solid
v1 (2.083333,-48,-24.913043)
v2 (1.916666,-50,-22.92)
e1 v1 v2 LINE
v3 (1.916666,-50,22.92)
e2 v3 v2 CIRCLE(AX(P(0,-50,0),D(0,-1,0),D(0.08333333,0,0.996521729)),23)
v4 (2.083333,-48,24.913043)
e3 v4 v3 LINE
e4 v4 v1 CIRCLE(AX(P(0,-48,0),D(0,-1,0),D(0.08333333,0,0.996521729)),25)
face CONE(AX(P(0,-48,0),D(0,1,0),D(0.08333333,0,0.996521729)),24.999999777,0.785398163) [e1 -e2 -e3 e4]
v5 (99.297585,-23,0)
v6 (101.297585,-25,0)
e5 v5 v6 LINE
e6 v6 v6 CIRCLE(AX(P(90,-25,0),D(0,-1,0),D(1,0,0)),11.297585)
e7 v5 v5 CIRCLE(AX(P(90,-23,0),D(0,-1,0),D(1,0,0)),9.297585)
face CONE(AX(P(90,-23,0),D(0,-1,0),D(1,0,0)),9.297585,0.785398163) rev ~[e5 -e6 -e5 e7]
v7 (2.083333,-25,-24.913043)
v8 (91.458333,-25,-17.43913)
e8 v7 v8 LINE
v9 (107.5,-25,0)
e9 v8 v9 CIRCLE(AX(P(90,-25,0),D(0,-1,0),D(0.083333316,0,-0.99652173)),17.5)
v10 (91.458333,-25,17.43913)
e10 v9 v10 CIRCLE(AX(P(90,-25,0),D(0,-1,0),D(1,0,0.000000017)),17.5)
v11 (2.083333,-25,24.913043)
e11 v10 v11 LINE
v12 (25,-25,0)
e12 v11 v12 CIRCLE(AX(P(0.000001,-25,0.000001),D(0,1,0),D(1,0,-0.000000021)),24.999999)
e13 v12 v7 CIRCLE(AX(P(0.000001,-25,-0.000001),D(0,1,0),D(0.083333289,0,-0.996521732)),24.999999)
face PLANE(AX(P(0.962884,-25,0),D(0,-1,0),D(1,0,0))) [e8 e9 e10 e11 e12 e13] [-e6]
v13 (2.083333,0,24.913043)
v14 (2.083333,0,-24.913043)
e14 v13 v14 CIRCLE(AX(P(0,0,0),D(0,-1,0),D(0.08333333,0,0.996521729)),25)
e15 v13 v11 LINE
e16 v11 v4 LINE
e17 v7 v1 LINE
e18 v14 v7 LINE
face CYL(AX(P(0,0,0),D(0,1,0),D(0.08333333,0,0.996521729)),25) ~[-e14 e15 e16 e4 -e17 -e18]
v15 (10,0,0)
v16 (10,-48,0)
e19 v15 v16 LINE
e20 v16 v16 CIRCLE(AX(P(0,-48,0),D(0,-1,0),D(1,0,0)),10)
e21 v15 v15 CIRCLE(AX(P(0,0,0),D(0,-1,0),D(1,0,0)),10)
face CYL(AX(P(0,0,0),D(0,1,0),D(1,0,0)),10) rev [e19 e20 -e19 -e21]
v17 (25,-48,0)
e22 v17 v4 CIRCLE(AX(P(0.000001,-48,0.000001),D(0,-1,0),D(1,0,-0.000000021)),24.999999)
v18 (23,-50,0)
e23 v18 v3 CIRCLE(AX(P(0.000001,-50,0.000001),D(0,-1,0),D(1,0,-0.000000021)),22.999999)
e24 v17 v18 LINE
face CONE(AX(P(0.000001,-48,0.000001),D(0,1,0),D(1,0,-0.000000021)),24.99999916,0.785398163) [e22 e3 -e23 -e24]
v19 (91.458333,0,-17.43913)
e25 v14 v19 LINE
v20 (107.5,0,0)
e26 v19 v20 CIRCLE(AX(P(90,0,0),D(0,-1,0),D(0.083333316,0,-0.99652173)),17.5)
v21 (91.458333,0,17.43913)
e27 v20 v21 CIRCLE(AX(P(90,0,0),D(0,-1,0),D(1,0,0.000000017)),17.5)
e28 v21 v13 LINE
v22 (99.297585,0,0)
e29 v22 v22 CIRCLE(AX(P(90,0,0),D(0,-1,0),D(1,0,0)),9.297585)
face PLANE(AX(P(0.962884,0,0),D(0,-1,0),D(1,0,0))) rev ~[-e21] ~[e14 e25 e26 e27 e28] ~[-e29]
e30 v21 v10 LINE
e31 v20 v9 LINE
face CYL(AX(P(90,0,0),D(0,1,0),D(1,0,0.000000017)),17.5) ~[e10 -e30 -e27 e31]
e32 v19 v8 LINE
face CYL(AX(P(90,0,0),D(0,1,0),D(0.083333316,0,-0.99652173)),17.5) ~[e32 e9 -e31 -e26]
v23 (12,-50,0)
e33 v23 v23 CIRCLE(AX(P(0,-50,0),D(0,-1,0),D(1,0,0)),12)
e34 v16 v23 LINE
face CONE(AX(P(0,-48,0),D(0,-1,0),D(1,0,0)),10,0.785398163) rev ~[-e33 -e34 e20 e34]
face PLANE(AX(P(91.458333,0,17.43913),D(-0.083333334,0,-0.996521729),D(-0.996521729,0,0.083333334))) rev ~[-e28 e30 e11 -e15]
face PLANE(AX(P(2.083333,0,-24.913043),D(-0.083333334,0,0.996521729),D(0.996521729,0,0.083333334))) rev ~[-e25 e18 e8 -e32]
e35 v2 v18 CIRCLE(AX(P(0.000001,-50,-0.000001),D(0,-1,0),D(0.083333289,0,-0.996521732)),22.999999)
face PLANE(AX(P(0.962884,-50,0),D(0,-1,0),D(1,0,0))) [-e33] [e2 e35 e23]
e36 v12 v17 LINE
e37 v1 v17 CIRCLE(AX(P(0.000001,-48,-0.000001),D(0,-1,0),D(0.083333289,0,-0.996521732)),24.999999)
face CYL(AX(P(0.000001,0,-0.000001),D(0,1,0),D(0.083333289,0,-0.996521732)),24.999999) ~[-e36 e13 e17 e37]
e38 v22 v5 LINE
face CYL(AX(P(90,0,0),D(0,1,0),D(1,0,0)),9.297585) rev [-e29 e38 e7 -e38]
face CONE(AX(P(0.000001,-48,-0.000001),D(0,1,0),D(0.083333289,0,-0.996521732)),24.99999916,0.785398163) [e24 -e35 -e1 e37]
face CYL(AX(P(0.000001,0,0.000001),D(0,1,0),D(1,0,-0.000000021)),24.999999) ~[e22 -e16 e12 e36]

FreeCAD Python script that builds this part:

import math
import FreeCAD as App
import Part
import Sketcher

V = App.Vector


def edges_at(feature, points):
    """Names of the edges that pass closest to the given points."""
    edges = feature.Shape.Edges
    near = lambda p: min(range(len(edges)), key=lambda i: edges[i].distToShape(Part.Vertex(*p))[0])
    return sorted({f"Edge{near(p) + 1}" for p in points})

doc = App.newDocument("Part")
body = doc.addObject("PartDesign::Body", "Body")

# Sketch on XZ plane
sketch1 = body.newObject("Sketcher::SketchObject", "Sketch")
sketch1.AttachmentSupport = (doc.getObject("XZ_Plane"), [""])
sketch1.MapMode = "FlatFace"
sketch1.addGeometry(Part.ArcOfCircle(Part.Circle(V(0, 0, 0), V(0, 0, 1), 25), math.radians(85), math.radians(275)), False)
sketch1.addGeometry(Part.LineSegment(V(2, -25, 0), V(91, -17, 0)), False)
sketch1.addGeometry(Part.ArcOfCircle(Part.Circle(V(90, 0, 0), V(0, 0, 1), 18), math.radians(-85), math.radians(0)), False)
sketch1.addGeometry(Part.ArcOfCircle(Part.Circle(V(90, 0, 0), V(0, 0, 1), 18), math.radians(0), math.radians(85)), False)
sketch1.addGeometry(Part.LineSegment(V(91, 17, 0), V(2, 25, 0)), False)
sketch1.addGeometry(Part.Circle(V(0, 0, 0), V(0, 0, 1), 10), False)
sketch1.addGeometry(Part.Circle(V(90, 0, 0), V(0, 0, 1), 9), False)
sketch1.addConstraint(Sketcher.Constraint("Tangent", 0, 2, 1, 1))
sketch1.addConstraint(Sketcher.Constraint("Tangent", 1, 2, 2, 1))
sketch1.addConstraint(Sketcher.Constraint("Tangent", 2, 2, 3, 1))
sketch1.addConstraint(Sketcher.Constraint("Tangent", 3, 2, 4, 1))
sketch1.addConstraint(Sketcher.Constraint("Tangent", 4, 2, 0, 1))
sketch1.addConstraint(Sketcher.Constraint("Coincident", 0, 3, -1, 1))
sketch1.addConstraint(Sketcher.Constraint("Coincident", 5, 3, -1, 1))
sketch1.addConstraint(Sketcher.Constraint("Coincident", 6, 3, 2, 3))
sketch1.addConstraint(Sketcher.Constraint("Equal", 2, 3))
sketch1.addConstraint(Sketcher.Constraint("PointOnObject", 2, 3, -1))
sketch1.addConstraint(Sketcher.Constraint("PointOnObject", 2, 2, -1))
sketch1.addConstraint(Sketcher.Constraint("Diameter", 5, 20.0))
sketch1.addConstraint(Sketcher.Constraint("Radius", 0, 25.0))
sketch1.addConstraint(Sketcher.Constraint("Radius", 2, 17.5))
sketch1.addConstraint(Sketcher.Constraint("DistanceX", -1, 1, 2, 3, 90.0))
sketch1.addConstraint(Sketcher.Constraint("Diameter", 6, 18.59517))
pad1 = body.newObject("PartDesign::Pad", "Pad")
pad1.Profile = sketch1
pad1.Length = 25

# Sketch on XZ plane
sketch2 = body.newObject("Sketcher::SketchObject", "Sketch001")
sketch2.AttachmentSupport = (doc.getObject("XZ_Plane"), [""])
sketch2.MapMode = "FlatFace"
sketch2.addGeometry(Part.ArcOfCircle(Part.Circle(V(0, 0, 0), V(0, 0, 1), 25), math.radians(-85), math.radians(0)), False)
sketch2.addGeometry(Part.ArcOfCircle(Part.Circle(V(0, 0, 0), V(0, 0, 1), 25), math.radians(0), math.radians(85)), False)
sketch2.addGeometry(Part.ArcOfCircle(Part.Circle(V(0, 0, 0), V(0, 0, 1), 25), math.radians(85), math.radians(275)), False)
sketch2.addGeometry(Part.Circle(V(0, 0, 0), V(0, 0, 1), 10), False)
sketch2.addConstraint(Sketcher.Constraint("Tangent", 0, 2, 1, 1))
sketch2.addConstraint(Sketcher.Constraint("Tangent", 1, 2, 2, 1))
sketch2.addConstraint(Sketcher.Constraint("Tangent", 2, 2, 0, 1))
sketch2.addConstraint(Sketcher.Constraint("Coincident", 0, 3, -1, 1))
sketch2.addConstraint(Sketcher.Constraint("Coincident", 3, 3, -1, 1))
sketch2.addConstraint(Sketcher.Constraint("PointOnObject", 0, 2, -1))
sketch2.addConstraint(Sketcher.Constraint("Vertical", 1, 2, 2, 2))
sketch2.addConstraint(Sketcher.Constraint("Diameter", 3, 20.0))
sketch2.addConstraint(Sketcher.Constraint("Radius", 0, 24.999999))
sketch2.addConstraint(Sketcher.Constraint("DistanceX", -1, 1, 1, 2, 2.083333))
pad2 = body.newObject("PartDesign::Pad", "Pad001")
pad2.Profile = sketch2
pad2.Length = 50
doc.recompute()

chamfer = body.newObject("PartDesign::Chamfer", "Chamfer")
chamfer.Base = (pad2, edges_at(pad2, [(80.702, -25, 0), (-10, -50, 0), (-25, -50, 0)]))
chamfer.Size = 2

doc.recompute()
